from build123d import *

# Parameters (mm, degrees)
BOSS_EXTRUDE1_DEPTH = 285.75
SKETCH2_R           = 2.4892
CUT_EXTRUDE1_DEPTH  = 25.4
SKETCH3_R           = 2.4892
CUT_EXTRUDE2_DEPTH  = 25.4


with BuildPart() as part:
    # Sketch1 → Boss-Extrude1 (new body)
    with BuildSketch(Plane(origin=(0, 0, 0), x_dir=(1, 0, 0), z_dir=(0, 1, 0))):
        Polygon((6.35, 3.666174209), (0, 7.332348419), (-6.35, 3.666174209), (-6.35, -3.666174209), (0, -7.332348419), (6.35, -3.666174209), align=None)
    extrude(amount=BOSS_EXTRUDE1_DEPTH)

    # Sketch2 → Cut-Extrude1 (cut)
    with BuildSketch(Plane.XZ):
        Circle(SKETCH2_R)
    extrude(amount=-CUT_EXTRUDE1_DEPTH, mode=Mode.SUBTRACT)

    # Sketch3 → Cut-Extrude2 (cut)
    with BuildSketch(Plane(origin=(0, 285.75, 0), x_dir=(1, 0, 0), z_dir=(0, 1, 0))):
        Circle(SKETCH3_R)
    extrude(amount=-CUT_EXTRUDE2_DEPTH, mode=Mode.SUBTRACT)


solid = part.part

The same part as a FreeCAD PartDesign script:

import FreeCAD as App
import Part
import Sketcher
from FreeCAD import Vector
Q = App.Units.Quantity


def add_polygon(sketch, points):
    """Adds a closed chain of lines whose ends are joined by coincident constraints."""
    first, n = sketch.GeometryCount, len(points)
    for a, b in zip(points, points[1:] + points[:1]):
        sketch.addGeometry(Part.LineSegment(App.Vector(*a, 0), App.Vector(*b, 0)), False)
    for i in range(n):
        sketch.addConstraint(Sketcher.Constraint("Coincident", first + i, 2, first + (i + 1) % n, 1))

doc = App.newDocument("Part")
body = doc.addObject("PartDesign::Body", "Body")

sketch1 = body.newObject("Sketcher::SketchObject", "Sketch")
sketch1.AttachmentSupport = (doc.getObject("XZ_Plane"), [""])
sketch1.MapMode = "FlatFace"
add_polygon(sketch1, [(6.35, -3.666174), (0, -7.332348), (-6.35, -3.666174), (-6.35, 3.666174), (0, 7.332348), (6.35, 3.666174)])
sketch1.addConstraint([
    Sketcher.Constraint("Vertical", 2),
    Sketcher.Constraint("Vertical", 5),
    Sketcher.Constraint("Symmetric", 0, 2, 3, 2, -1, 1),
    Sketcher.Constraint("Symmetric", 1, 2, 4, 2, -1, 1),
    Sketcher.Constraint("PointOnObject", 0, 2, -2),
    Sketcher.Constraint("Parallel", 0, 3),
    Sketcher.Constraint("Horizontal", 2, 2, 4, 2),
    Sketcher.Constraint("Angle", 0, Q("-150 deg")),
    Sketcher.Constraint("DistanceX", 2, 2, 4, 2, Q("0.5 in")),
    Sketcher.Constraint("DistanceY", 2, 1, 2, 2, Q("7.332348 mm")),
])
pad1 = body.newObject("PartDesign::Pad", "Pad")
pad1.Profile = sketch1
pad1.Length = Q("11.25 in")
pad1.Reversed = True

sketch2 = body.newObject("Sketcher::SketchObject", "Sketch001")
sketch2.AttachmentSupport = (doc.getObject("XZ_Plane"), [""])
sketch2.MapMode = "FlatFace"
sketch2.addGeometry(Part.Circle(Vector(0, 0, 0), Vector(0, 0, 1), 2.4892), False)
sketch2.addConstraint([
    Sketcher.Constraint("Coincident", 0, 3, -1, 1),
    Sketcher.Constraint("Diameter", 0, Q("0.196 in")),
])
pocket1 = body.newObject("PartDesign::Pocket", "Pocket")
pocket1.Profile = sketch2
pocket1.Length = Q("1 in")

sketch3 = body.newObject("Sketcher::SketchObject", "Sketch002")
sketch3.AttachmentSupport = (doc.getObject("XZ_Plane"), [""])
sketch3.MapMode = "FlatFace"
sketch3.AttachmentOffset = App.Placement(Vector(0, 0, -11.25 * 25.4), App.Rotation())
sketch3.addGeometry(Part.Circle(Vector(0, 0, 0), Vector(0, 0, 1), 2.4892), False)
sketch3.addConstraint([
    Sketcher.Constraint("Coincident", 0, 3, -1, 1),
    Sketcher.Constraint("Diameter", 0, Q("0.196 in")),
])
pocket2 = body.newObject("PartDesign::Pocket", "Pocket001")
pocket2.Profile = sketch3
pocket2.Length = Q("1 in")
pocket2.Reversed = True

doc.recompute()
